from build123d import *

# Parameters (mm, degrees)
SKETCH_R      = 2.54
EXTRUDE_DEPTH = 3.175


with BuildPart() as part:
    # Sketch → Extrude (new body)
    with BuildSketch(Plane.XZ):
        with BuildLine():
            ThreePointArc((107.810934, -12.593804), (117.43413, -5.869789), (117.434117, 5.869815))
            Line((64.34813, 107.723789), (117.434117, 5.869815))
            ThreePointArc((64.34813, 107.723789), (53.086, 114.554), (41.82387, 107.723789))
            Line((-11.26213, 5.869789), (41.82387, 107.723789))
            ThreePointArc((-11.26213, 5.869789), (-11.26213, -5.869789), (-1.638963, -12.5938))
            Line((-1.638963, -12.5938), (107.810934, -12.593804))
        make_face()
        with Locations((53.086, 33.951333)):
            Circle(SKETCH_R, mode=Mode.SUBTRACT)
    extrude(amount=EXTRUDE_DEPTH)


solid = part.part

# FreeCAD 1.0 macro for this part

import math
import FreeCAD as App
import Part
import Sketcher

V = App.Vector
Q = App.Units.Quantity

doc = App.newDocument("Part")
params = doc.addObject("Spreadsheet::Sheet", "Params")
for row, (alias, value) in enumerate([
    ("sketch1_diameter", "0.2 in"),
    ("sketch1_radius", "0.5 in"),
    ("pad1_length", "0.125 in"),
], start=1):
    params.set(f"A{row}", alias)
    params.set(f"B{row}", "=" + value)
    params.setAlias(f"B{row}", alias)

body = doc.addObject("PartDesign::Body", "Body")

# Sketch on XZ plane
sketch1 = body.newObject("Sketcher::SketchObject", "Sketch")
sketch1.AttachmentSupport = (doc.getObject("XZ_Plane"), [""])
sketch1.MapMode = "FlatFace"
sketch1.addGeometry([
    Part.ArcOfCircle(Part.Circle(V(106.2, 0, 0), V(0, 0, 1), 12.7), math.radians(-83), math.radians(28)),  # 0
    Part.LineSegment(V(117.4, 5.9, 0), V(64.3, 107.7, 0)),  # 1
    Part.ArcOfCircle(Part.Circle(V(53.1, 101.9, 0), V(0, 0, 1), 12.7), math.radians(28), math.radians(152)),  # 2
    Part.LineSegment(V(41.8, 107.7, 0), V(-11.3, 5.9, 0)),  # 3
    Part.ArcOfCircle(Part.Circle(V(0, 0, 0), V(0, 0, 1), 12.7), math.radians(152), math.radians(263)),  # 4
    Part.LineSegment(V(-1.6, -12.6, 0), V(107.8, -12.6, 0)),  # 5
    Part.Circle(V(53.1, 34, 0), V(0, 0, 1), 2.5),  # 6
], False)
sketch1.addConstraint([
    Sketcher.Constraint("Coincident", 0, 2, 1, 1),
    Sketcher.Constraint("Tangent", 1, 2, 2, 1),
    Sketcher.Constraint("Tangent", 2, 2, 3, 1),
    Sketcher.Constraint("Tangent", 3, 2, 4, 1),
    Sketcher.Constraint("Coincident", 4, 2, 5, 1),
    Sketcher.Constraint("Coincident", 5, 2, 0, 1),
    Sketcher.Constraint("Coincident", 4, 3, -1, 1),
    Sketcher.Constraint("Equal", 0, 2),
    Sketcher.Constraint("Equal", 2, 4),
    Sketcher.Constraint("PointOnObject", 0, 3, -1),
    Sketcher.Constraint("Horizontal", 1, 2, 2, 2),
    Sketcher.Constraint("Vertical", 2, 3, 6, 3),
    Sketcher.Constraint("Diameter", 6, Q("0.2 in")),
    Sketcher.Constraint("Radius", 0, Q("0.5 in")),
    Sketcher.Constraint("Angle", 5, Q("-0.000002 deg")),
    Sketcher.Constraint("DistanceX", -1, 1, 0, 3, Q("4.18 in")),
    Sketcher.Constraint("DistanceY", -1, 1, 2, 3, Q("4.01 in")),
    Sketcher.Constraint("DistanceY", 4, 2, -1, 1, Q("12.5938 mm")),
    Sketcher.Constraint("DistanceY", 0, 2, 6, 3, Q("28.081518 mm")),
    Sketcher.Constraint("DistanceX", 4, 2, 0, 2, Q("119.07308 mm")),
])
sketch1.setExpression("Constraints[12]", "Params.sketch1_diameter")
sketch1.setExpression("Constraints[13]", "Params.sketch1_radius")
pad1 = body.newObject("PartDesign::Pad", "Pad")
pad1.Profile = sketch1
pad1.setExpression("Length", "Params.pad1_length")

doc.recompute()
